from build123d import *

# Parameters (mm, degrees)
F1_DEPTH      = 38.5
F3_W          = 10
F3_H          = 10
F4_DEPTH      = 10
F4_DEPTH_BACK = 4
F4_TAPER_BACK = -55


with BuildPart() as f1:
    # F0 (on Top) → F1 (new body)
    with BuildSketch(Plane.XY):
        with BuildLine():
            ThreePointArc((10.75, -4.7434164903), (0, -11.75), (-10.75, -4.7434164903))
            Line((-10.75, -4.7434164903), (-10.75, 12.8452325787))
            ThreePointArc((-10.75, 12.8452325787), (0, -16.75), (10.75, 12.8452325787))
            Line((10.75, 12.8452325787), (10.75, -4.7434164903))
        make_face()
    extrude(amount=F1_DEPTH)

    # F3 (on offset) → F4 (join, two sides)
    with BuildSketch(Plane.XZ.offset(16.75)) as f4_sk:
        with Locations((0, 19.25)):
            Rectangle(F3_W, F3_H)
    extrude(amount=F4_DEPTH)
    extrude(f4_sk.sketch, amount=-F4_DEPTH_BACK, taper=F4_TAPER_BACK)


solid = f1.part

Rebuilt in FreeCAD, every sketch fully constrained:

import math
import FreeCAD as App
import Part
import Sketcher
from FreeCAD import Vector
Q = App.Units.Quantity


def add_polygon(sketch, points):
    """Adds a closed chain of lines whose ends are joined by coincident constraints."""
    first, n = sketch.GeometryCount, len(points)
    for a, b in zip(points, points[1:] + points[:1]):
        sketch.addGeometry(Part.LineSegment(App.Vector(*a, 0), App.Vector(*b, 0)), False)
    for i in range(n):
        sketch.addConstraint(Sketcher.Constraint("Coincident", first + i, 2, first + (i + 1) % n, 1))

doc = App.newDocument("Part")
params = doc.addObject("Spreadsheet::Sheet", "Params")
for row, (alias, value) in enumerate([
    ("sketch1_radius", "11.75 mm"),
    ("sketch1_radius2", "16.75 mm"),
    ("pad1_length", "38.5 mm"),
    ("sketch2_width", "10 mm"),
    ("pad2_length", "10 mm"),
    ("pad3_length", "4 mm"),
    ("pad3_taper", "55 deg"),
], start=1):
    params.set(f"A{row}", alias)
    params.set(f"B{row}", "=" + value)
    params.setAlias(f"B{row}", alias)

body = doc.addObject("PartDesign::Body", "Body")
body.AllowCompound = True

# Sketch on XY plane
sketch1 = doc.addObject("Sketcher::SketchObject", "Sketch")
body.addObject(sketch1)
sketch1.AttachmentSupport = (doc.XY_Plane, [""])
sketch1.MapMode = "FlatFace"
sketch1.addGeometry([
    Part.ArcOfCircle(Part.Circle(Vector(0, 0, 0), Vector(0, 0, 1), 12), math.radians(-156), math.radians(-24)),
    Part.LineSegment(Vector(-11, -5, 0), Vector(-11, 13, 0)),
    Part.ArcOfCircle(Part.Circle(Vector(0, 0, 0), Vector(0, 0, 1), 17), math.radians(130), math.radians(410)),
    Part.LineSegment(Vector(11, 13, 0), Vector(11, -5, 0)),
], False)
sketch1.addConstraint([
    Sketcher.Constraint("Coincident", 0, 1, 1, 1),
    Sketcher.Constraint("Coincident", 1, 2, 2, 1),
    Sketcher.Constraint("Coincident", 2, 2, 3, 1),
    Sketcher.Constraint("Coincident", 3, 2, 0, 2),
    Sketcher.Constraint("Vertical", 1),
    Sketcher.Constraint("Vertical", 3),
    Sketcher.Constraint("Coincident", 0, 3, -1, 1),
    Sketcher.Constraint("Coincident", 2, 3, -1, 1),
    Sketcher.Constraint("Horizontal", 1, 2, 2, 2),
    Sketcher.Constraint("Radius", 0, Q("11.75 mm")),
    Sketcher.Constraint("Radius", 2, Q("16.75 mm")),
    Sketcher.Constraint("DistanceX", 1, 2, 2, 2, Q("21.5 mm")),
])
sketch1.setExpression("Constraints[9]", "Params.sketch1_radius")
sketch1.setExpression("Constraints[10]", "Params.sketch1_radius2")
pad1 = doc.addObject("PartDesign::Pad", "Pad")
body.addObject(pad1)
pad1.Profile = sketch1
pad1.setExpression("Length", "Params.pad1_length")

# Sketch on XZ plane
sketch2 = doc.addObject("Sketcher::SketchObject", "Sketch001")
body.addObject(sketch2)
sketch2.AttachmentSupport = (doc.XZ_Plane, [""])
sketch2.MapMode = "FlatFace"
sketch2.AttachmentOffset = App.Placement(Vector(0, 0, 16.75), App.Rotation())
add_polygon(sketch2, [(-5, 24), (-5, 14), (5, 14), (5, 24)])  # lines 0-3
sketch2.addConstraint([
    Sketcher.Constraint("Vertical", 0),
    Sketcher.Constraint("Horizontal", 1),
    Sketcher.Constraint("Vertical", 2),
    Sketcher.Constraint("Horizontal", 3),
    Sketcher.Constraint("Equal", 3, 0),
    Sketcher.Constraint("DistanceX", 1, 1, 1, 2, Q("10 mm")),
    Sketcher.Constraint("DistanceX", 0, 2, -1, 1, Q("5 mm")),
    Sketcher.Constraint("DistanceY", -1, 1, 0, 2, Q("14.25 mm")),
])
sketch2.setExpression("Constraints[9]", "Params.sketch2_width")
pad2 = doc.addObject("PartDesign::Pad", "Pad001")
body.addObject(pad2)
pad2.Profile = sketch2
pad2.setExpression("Length", "Params.pad2_length")
pad3 = doc.addObject("PartDesign::Pad", "Pad002")
body.addObject(pad3)
pad3.Profile = sketch2
pad3.setExpression("Length", "Params.pad3_length")
pad3.Reversed = True
pad3.setExpression("TaperAngle", "Params.pad3_taper")

doc.recompute()
